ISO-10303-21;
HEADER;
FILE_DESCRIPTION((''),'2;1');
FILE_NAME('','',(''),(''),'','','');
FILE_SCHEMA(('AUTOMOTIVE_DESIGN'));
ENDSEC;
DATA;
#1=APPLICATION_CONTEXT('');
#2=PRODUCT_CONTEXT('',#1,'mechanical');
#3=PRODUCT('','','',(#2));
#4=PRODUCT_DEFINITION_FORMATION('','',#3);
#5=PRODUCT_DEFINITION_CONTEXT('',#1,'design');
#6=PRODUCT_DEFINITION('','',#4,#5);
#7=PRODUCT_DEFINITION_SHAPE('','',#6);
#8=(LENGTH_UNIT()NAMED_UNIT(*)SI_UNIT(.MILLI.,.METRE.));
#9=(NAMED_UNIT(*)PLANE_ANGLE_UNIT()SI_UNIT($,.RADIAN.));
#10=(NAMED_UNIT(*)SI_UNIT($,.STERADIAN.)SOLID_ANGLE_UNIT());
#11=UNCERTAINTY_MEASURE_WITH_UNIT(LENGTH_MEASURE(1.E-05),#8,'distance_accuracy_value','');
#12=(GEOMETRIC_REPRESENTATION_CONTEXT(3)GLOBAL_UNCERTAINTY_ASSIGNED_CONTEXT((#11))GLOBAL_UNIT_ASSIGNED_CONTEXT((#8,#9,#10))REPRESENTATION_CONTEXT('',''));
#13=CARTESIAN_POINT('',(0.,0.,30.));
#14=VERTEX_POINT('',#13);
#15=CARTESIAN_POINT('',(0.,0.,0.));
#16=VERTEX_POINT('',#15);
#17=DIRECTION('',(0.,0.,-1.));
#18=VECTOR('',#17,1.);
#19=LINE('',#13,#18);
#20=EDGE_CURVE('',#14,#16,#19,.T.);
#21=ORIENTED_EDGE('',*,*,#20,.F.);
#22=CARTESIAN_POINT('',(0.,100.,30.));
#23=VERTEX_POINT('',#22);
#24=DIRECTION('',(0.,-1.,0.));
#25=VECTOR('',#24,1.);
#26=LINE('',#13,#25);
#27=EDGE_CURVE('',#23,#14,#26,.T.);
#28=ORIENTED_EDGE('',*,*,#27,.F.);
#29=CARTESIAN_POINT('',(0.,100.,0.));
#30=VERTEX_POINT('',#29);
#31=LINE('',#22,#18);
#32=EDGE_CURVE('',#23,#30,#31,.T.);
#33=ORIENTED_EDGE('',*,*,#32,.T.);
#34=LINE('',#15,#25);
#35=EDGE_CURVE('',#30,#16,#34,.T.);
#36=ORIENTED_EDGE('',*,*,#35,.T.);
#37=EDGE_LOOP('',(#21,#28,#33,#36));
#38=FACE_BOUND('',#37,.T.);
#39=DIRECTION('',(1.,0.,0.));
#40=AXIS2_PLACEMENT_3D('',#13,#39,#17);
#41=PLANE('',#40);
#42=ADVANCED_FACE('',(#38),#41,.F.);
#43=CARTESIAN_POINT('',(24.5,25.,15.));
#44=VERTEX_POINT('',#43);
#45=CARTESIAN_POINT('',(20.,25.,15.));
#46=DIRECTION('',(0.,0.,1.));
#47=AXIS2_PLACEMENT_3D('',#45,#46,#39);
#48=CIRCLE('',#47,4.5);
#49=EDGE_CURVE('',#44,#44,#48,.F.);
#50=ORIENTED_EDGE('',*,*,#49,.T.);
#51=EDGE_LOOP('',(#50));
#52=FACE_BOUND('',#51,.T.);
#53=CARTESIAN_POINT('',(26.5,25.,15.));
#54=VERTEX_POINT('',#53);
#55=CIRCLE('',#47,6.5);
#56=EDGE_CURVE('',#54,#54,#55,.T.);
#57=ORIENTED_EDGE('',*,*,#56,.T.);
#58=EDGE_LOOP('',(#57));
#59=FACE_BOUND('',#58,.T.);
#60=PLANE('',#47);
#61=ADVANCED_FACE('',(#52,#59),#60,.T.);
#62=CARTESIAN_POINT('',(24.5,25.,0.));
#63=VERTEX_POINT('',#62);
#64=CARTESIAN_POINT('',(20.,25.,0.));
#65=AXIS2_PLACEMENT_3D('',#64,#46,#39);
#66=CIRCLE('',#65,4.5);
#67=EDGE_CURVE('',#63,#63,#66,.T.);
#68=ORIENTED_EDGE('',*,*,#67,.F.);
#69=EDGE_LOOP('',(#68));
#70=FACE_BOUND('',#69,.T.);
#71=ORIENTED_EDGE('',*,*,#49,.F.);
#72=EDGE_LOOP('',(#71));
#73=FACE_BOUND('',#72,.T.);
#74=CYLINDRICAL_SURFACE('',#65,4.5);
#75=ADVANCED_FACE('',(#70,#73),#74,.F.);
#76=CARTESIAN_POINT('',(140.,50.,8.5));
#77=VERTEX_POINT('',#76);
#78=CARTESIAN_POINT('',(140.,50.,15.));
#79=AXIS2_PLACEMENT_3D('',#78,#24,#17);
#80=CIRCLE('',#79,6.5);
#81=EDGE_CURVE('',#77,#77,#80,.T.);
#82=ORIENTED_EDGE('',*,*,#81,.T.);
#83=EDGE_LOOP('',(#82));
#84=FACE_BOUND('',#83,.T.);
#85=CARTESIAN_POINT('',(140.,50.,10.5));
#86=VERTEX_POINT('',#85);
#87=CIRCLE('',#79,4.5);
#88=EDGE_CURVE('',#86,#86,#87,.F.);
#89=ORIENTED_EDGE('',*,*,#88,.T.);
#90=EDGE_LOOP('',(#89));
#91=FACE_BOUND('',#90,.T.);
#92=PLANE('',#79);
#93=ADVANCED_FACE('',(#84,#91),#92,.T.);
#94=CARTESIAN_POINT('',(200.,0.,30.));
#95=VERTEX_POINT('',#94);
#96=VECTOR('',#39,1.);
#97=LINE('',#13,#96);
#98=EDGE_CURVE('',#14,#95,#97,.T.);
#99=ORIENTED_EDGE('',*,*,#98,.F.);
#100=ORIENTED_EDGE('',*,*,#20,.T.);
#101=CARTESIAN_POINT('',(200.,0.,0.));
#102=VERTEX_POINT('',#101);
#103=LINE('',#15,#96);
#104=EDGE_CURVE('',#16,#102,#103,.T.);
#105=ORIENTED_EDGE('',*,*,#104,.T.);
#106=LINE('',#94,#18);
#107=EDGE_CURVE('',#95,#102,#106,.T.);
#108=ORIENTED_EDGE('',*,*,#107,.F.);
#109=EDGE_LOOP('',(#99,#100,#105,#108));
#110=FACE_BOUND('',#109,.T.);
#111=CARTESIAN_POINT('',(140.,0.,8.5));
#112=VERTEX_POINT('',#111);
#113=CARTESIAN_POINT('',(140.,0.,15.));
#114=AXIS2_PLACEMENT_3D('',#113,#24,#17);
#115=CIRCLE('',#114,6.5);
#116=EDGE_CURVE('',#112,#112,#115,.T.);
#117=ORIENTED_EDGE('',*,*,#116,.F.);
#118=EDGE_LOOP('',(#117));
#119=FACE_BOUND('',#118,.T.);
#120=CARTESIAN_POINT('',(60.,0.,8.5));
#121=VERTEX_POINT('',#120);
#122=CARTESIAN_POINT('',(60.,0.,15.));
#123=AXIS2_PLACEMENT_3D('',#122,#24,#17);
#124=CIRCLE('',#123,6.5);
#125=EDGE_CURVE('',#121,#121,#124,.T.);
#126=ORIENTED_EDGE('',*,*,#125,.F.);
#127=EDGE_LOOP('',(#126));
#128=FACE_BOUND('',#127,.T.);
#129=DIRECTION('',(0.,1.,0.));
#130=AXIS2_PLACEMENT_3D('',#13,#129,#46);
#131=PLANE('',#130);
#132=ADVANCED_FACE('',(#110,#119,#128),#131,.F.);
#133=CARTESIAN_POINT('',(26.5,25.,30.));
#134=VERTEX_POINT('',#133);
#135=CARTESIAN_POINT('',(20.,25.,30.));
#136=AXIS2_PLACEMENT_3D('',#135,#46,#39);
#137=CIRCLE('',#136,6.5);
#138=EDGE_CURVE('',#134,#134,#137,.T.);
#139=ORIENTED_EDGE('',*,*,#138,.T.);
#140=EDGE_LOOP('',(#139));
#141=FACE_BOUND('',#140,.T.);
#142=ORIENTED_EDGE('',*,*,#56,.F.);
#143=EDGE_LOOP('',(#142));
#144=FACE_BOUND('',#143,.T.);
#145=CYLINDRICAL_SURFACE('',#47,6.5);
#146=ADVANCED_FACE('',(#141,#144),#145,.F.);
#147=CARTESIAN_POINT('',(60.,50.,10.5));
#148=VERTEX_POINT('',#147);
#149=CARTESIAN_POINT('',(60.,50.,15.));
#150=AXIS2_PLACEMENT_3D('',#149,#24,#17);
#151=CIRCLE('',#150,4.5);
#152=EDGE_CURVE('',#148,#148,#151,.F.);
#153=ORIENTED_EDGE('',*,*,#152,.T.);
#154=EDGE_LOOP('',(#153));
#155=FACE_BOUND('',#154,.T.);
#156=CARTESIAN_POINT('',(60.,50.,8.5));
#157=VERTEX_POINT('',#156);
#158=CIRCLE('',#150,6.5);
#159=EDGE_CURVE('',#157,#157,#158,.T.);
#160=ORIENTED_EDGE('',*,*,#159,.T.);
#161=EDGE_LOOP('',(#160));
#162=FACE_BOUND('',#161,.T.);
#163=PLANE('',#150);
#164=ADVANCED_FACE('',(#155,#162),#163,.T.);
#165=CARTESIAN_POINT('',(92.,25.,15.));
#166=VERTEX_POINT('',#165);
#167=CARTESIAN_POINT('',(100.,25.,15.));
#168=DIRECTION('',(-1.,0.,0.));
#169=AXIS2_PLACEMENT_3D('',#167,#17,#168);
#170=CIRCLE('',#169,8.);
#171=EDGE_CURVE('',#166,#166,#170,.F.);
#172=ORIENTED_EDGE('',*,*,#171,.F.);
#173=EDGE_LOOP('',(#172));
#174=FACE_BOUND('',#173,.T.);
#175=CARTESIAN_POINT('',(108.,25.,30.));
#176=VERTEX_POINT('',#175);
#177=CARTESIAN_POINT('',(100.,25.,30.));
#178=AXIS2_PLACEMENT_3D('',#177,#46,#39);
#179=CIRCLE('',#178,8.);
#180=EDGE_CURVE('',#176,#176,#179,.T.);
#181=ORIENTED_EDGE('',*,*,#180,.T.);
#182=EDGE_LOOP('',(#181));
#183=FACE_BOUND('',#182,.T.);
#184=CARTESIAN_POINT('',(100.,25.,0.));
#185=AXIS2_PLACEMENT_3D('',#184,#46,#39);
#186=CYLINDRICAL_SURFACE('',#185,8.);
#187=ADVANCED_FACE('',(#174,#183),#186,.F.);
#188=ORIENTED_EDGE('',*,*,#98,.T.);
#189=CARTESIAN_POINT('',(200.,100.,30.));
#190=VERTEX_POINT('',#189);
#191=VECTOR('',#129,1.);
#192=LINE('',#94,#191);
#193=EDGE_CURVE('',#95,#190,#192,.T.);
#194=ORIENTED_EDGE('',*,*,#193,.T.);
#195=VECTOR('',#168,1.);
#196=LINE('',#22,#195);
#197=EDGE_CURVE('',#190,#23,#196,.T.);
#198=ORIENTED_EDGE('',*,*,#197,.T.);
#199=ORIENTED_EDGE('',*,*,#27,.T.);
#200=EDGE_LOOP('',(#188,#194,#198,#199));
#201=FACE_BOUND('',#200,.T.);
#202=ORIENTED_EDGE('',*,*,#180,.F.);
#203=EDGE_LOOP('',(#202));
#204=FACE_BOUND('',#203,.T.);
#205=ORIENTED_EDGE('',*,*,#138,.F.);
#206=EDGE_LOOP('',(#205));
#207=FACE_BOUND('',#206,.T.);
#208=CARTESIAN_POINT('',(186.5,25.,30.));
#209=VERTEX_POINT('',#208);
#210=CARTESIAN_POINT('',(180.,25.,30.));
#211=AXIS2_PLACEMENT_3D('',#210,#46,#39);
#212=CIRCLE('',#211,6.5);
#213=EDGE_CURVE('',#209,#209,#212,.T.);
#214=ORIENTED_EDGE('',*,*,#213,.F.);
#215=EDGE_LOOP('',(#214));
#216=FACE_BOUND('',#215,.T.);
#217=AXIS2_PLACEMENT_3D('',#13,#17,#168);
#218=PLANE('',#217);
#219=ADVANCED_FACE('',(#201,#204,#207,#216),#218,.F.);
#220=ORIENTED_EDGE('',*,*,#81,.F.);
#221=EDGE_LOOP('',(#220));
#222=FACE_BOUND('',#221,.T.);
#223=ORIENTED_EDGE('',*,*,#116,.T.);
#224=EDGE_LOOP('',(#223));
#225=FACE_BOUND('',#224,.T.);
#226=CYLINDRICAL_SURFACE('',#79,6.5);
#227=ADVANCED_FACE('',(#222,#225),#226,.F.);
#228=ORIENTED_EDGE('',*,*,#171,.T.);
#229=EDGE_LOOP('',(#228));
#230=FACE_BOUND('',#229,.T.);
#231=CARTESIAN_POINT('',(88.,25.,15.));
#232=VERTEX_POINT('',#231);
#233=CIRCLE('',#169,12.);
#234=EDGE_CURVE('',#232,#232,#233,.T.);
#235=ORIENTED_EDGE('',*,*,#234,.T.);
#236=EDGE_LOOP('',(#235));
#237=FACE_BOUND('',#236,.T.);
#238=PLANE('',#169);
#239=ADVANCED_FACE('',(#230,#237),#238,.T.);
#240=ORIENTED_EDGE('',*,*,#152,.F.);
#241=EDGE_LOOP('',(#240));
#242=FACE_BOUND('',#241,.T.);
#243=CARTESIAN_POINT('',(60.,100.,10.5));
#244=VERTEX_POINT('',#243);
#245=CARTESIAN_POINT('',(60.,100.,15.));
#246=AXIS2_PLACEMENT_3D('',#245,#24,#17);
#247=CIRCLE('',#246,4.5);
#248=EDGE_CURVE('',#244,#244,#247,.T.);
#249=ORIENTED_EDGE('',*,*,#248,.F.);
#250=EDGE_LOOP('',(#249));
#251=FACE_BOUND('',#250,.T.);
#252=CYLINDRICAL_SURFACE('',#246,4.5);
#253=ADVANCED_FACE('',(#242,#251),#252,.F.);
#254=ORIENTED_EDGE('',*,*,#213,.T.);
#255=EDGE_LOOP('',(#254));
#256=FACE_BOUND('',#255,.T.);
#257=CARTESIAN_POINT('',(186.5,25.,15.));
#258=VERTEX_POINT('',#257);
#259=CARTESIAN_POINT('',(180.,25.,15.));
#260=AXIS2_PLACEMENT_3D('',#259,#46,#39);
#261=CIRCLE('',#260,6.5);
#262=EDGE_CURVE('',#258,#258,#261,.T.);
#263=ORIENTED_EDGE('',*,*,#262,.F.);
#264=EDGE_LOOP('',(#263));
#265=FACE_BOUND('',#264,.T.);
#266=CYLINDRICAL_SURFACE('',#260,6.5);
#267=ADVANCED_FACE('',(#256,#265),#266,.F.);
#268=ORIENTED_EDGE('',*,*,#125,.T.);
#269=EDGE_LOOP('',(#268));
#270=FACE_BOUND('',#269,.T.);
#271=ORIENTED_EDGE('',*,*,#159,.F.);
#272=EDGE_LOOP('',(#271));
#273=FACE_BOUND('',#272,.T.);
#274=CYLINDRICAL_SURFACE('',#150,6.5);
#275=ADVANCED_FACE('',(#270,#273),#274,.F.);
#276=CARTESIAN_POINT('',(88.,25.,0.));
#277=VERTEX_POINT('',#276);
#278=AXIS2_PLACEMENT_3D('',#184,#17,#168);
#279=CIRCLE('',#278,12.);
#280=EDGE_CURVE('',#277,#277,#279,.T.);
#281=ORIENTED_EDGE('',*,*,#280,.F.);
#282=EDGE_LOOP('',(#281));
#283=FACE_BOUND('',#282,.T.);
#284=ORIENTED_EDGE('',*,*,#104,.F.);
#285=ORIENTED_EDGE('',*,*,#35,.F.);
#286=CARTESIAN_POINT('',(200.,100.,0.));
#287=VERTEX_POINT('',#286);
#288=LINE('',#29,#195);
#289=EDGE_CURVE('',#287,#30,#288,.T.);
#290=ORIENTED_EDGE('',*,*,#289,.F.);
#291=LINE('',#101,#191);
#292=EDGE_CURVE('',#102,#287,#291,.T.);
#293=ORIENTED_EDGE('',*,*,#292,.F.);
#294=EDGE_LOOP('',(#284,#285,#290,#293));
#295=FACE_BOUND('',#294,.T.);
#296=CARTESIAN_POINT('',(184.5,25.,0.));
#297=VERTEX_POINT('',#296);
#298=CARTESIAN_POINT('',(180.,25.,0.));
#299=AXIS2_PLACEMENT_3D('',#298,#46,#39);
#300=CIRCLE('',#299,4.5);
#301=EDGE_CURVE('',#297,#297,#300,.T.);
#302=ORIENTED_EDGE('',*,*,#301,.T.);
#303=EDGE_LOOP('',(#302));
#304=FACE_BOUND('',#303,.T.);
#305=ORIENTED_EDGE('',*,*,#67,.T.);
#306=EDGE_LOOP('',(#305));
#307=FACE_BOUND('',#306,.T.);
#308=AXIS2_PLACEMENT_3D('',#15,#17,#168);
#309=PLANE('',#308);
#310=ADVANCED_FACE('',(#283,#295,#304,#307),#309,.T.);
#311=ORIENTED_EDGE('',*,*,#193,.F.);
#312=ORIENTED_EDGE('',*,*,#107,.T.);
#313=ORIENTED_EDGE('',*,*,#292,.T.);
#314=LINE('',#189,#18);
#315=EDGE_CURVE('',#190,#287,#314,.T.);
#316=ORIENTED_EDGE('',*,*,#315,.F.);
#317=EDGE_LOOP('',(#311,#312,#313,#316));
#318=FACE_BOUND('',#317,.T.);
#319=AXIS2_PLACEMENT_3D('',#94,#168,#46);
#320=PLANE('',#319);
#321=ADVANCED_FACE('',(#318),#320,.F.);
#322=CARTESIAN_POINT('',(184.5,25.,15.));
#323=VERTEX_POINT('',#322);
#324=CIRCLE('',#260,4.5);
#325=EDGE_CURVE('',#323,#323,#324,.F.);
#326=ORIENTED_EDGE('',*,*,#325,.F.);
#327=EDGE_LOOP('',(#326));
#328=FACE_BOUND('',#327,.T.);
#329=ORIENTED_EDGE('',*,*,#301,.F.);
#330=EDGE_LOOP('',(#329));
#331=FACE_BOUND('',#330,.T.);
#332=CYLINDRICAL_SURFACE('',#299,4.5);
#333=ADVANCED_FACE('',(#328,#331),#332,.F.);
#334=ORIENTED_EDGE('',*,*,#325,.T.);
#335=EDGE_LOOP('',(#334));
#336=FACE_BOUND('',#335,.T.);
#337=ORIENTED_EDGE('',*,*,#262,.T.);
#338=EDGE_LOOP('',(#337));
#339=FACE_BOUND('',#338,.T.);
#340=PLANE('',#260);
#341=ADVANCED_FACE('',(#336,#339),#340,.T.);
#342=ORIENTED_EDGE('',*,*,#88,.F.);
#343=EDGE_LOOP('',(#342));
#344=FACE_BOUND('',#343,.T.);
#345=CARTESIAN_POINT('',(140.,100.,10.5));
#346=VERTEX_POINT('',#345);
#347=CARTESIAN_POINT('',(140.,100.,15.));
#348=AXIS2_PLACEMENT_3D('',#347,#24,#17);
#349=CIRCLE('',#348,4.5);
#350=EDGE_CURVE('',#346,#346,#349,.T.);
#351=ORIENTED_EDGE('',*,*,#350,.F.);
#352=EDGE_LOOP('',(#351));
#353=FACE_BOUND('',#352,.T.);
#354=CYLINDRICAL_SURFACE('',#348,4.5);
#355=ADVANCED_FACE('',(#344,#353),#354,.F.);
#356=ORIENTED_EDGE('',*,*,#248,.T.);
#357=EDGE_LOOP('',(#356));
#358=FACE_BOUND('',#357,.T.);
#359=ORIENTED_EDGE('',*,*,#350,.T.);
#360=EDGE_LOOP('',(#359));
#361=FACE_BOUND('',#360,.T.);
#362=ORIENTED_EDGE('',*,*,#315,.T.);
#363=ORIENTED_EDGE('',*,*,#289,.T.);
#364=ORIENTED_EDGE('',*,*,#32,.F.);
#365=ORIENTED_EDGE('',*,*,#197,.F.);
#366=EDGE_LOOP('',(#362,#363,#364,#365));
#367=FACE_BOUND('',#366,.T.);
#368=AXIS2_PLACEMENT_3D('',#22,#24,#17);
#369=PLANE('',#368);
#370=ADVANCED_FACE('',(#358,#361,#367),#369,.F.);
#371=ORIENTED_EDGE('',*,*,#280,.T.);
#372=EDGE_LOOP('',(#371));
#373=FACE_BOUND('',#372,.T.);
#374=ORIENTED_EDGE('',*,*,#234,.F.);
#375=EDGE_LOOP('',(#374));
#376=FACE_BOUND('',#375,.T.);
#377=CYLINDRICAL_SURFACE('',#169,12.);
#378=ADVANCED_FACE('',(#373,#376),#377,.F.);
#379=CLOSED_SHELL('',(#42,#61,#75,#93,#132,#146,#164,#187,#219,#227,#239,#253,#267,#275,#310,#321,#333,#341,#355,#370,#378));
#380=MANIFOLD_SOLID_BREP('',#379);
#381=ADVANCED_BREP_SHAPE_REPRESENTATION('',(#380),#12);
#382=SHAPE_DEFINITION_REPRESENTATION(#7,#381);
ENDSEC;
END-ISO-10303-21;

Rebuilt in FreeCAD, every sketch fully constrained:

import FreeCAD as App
import Part
import Sketcher

V = App.Vector


def add_polygon(sketch, points):
    """Adds a closed chain of lines whose ends are joined by coincident constraints."""
    first, n = sketch.GeometryCount, len(points)
    for a, b in zip(points, points[1:] + points[:1]):
        sketch.addGeometry(Part.LineSegment(App.Vector(*a, 0), App.Vector(*b, 0)), False)
    for i in range(n):
        sketch.addConstraint(Sketcher.Constraint("Coincident", first + i, 2, first + (i + 1) % n, 1))

doc = App.newDocument("Part")
body = doc.addObject("PartDesign::Body", "Body")

# Sketch on XY plane
sketch1 = body.newObject("Sketcher::SketchObject", "Sketch")
sketch1.AttachmentSupport = (doc.getObject("XY_Plane"), [""])
sketch1.MapMode = "FlatFace"
add_polygon(sketch1, [(0, 100), (0, 0), (200, 0), (200, 100)])  # lines 0-3
sketch1.addConstraint([
    Sketcher.Constraint("Vertical", 0),
    Sketcher.Constraint("Horizontal", 1),
    Sketcher.Constraint("Vertical", 2),
    Sketcher.Constraint("Horizontal", 3),
    Sketcher.Constraint("Coincident", 0, 2, -1, 1),
    Sketcher.Constraint("DistanceX", 1, 1, 1, 2, 200.0),
    Sketcher.Constraint("DistanceY", 0, 2, 0, 1, 100.0),
])
pad1 = body.newObject("PartDesign::Pad", "Pad")
pad1.Profile = sketch1
pad1.Length = 30

# Sketch on XY plane
sketch2 = body.newObject("Sketcher::SketchObject", "Sketch001")
sketch2.AttachmentSupport = (doc.getObject("XY_Plane"), [""])
sketch2.MapMode = "FlatFace"
sketch2.AttachmentOffset = App.Placement(V(0, 0, 30), App.Rotation())
sketch2.addGeometry([
    Part.Circle(V(20, 25, 0), V(0, 0, 1), 4.5),
    Part.Circle(V(100, 25, 0), V(0, 0, 1), 8),
    Part.Circle(V(180, 25, 0), V(0, 0, 1), 4.5),
], False)
sketch2.addConstraint([
    Sketcher.Constraint("Equal", 0, 2),
    Sketcher.Constraint("Horizontal", 0, 3, 1, 3),
    Sketcher.Constraint("Horizontal", 1, 3, 2, 3),
    Sketcher.Constraint("Diameter", 0, 9.0),
    Sketcher.Constraint("Diameter", 1, 16.0),
    Sketcher.Constraint("DistanceX", -1, 1, 0, 3, 20.0),
    Sketcher.Constraint("DistanceY", -1, 1, 0, 3, 25.0),
    Sketcher.Constraint("DistanceX", -1, 1, 1, 3, 100.0),
    Sketcher.Constraint("DistanceX", -1, 1, 2, 3, 180.0),
])
pocket1 = body.newObject("PartDesign::Pocket", "Pocket")
pocket1.Profile = sketch2
pocket1.Type = "ThroughAll"

# Sketch on XZ plane
sketch3 = body.newObject("Sketcher::SketchObject", "Sketch002")
sketch3.AttachmentSupport = (doc.getObject("XZ_Plane"), [""])
sketch3.MapMode = "FlatFace"
sketch3.addGeometry([
    Part.Circle(V(60, 15, 0), V(0, 0, 1), 4.5),
    Part.Circle(V(140, 15, 0), V(0, 0, 1), 4.5),
], False)
sketch3.addConstraint([
    Sketcher.Constraint("Equal", 0, 1),
    Sketcher.Constraint("Horizontal", 0, 3, 1, 3),
    Sketcher.Constraint("Diameter", 0, 9.0),
    Sketcher.Constraint("DistanceX", -1, 1, 0, 3, 60.0),
    Sketcher.Constraint("DistanceY", -1, 1, 0, 3, 15.0),
    Sketcher.Constraint("DistanceX", -1, 1, 1, 3, 140.0),
])
pocket2 = body.newObject("PartDesign::Pocket", "Pocket001")
pocket2.Profile = sketch3
pocket2.Type = "ThroughAll"

# Sketch on XZ plane
sketch4 = body.newObject("Sketcher::SketchObject", "Sketch003")
sketch4.AttachmentSupport = (doc.getObject("XZ_Plane"), [""])
sketch4.MapMode = "FlatFace"
sketch4.addGeometry([
    Part.Circle(V(60, 15, 0), V(0, 0, 1), 6),
    Part.Circle(V(140, 15, 0), V(0, 0, 1), 6),
], False)
sketch4.addConstraint([
    Sketcher.Constraint("Equal", 0, 1),
    Sketcher.Constraint("Horizontal", 0, 3, 1, 3),
    Sketcher.Constraint("Diameter", 0, 13.0),
    Sketcher.Constraint("DistanceX", -1, 1, 0, 3, 60.0),
    Sketcher.Constraint("DistanceY", -1, 1, 0, 3, 15.0),
    Sketcher.Constraint("DistanceX", -1, 1, 1, 3, 140.0),
])
pocket3 = body.newObject("PartDesign::Pocket", "Pocket002")
pocket3.Profile = sketch4
pocket3.Length = 50

# Sketch on XY plane
sketch5 = body.newObject("Sketcher::SketchObject", "Sketch004")
sketch5.AttachmentSupport = (doc.getObject("XY_Plane"), [""])
sketch5.MapMode = "FlatFace"
sketch5.AttachmentOffset = App.Placement(V(0, 0, 30), App.Rotation())
sketch5.addGeometry([
    Part.Circle(V(20, 25, 0), V(0, 0, 1), 6),
    Part.Circle(V(180, 25, 0), V(0, 0, 1), 6),
], False)
sketch5.addConstraint([
    Sketcher.Constraint("Equal", 0, 1),
    Sketcher.Constraint("Horizontal", 0, 3, 1, 3),
    Sketcher.Constraint("Diameter", 0, 13.0),
    Sketcher.Constraint("DistanceX", -1, 1, 0, 3, 20.0),
    Sketcher.Constraint("DistanceY", -1, 1, 0, 3, 25.0),
    Sketcher.Constraint("DistanceX", -1, 1, 1, 3, 180.0),
])
pocket4 = body.newObject("PartDesign::Pocket", "Pocket003")
pocket4.Profile = sketch5
pocket4.Length = 15

# Sketch on XY plane
sketch6 = body.newObject("Sketcher::SketchObject", "Sketch005")
sketch6.AttachmentSupport = (doc.getObject("XY_Plane"), [""])
sketch6.MapMode = "FlatFace"
sketch6.addGeometry(Part.Circle(V(100, 25, 0), V(0, 0, 1), 12), False)
sketch6.addConstraint([
    Sketcher.Constraint("Diameter", 0, 24.0),
    Sketcher.Constraint("DistanceX", -1, 1, 0, 3, 100.0),
    Sketcher.Constraint("DistanceY", -1, 1, 0, 3, 25.0),
])
pocket5 = body.newObject("PartDesign::Pocket", "Pocket004")
pocket5.Profile = sketch6
pocket5.Length = 15
pocket5.Reversed = True

doc.recompute()
